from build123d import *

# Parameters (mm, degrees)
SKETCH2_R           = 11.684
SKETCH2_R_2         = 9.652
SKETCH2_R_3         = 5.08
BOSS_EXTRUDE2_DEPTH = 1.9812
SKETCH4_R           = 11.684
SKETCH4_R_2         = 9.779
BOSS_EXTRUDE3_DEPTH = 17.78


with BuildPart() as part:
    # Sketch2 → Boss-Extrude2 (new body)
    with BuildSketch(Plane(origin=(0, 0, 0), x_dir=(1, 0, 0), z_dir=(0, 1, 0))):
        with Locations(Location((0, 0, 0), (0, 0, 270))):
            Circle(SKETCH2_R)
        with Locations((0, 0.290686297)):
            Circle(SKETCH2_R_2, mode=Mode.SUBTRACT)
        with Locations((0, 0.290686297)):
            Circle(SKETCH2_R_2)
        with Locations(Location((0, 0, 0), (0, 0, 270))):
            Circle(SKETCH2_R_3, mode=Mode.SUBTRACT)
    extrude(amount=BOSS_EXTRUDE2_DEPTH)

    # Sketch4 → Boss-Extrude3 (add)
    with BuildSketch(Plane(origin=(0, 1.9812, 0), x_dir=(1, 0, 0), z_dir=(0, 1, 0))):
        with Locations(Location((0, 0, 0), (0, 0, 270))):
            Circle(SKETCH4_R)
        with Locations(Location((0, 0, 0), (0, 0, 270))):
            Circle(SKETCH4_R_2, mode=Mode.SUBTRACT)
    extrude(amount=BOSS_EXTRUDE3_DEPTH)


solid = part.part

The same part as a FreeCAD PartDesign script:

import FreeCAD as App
import Part
import Sketcher

V = App.Vector
Q = App.Units.Quantity

doc = App.newDocument("Part")
body = doc.addObject("PartDesign::Body", "Body")

# Sketch on XZ plane
sketch1 = body.newObject("Sketcher::SketchObject", "Sketch")
sketch1.AttachmentSupport = (doc.getObject("XZ_Plane"), [""])
sketch1.MapMode = "FlatFace"
sketch1.addGeometry(Part.Circle(V(0, 0, 0), V(0, 0, 1), 11.684), False)
sketch1.addGeometry(Part.Circle(V(0, 0, 0), V(0, 0, 1), 5.08), False)
sketch1.addConstraint(Sketcher.Constraint("Coincident", 0, 3, -1, 1))
sketch1.addConstraint(Sketcher.Constraint("Coincident", 1, 3, -1, 1))
sketch1.addConstraint(Sketcher.Constraint("Diameter", 1, Q("0.4 in")))
sketch1.addConstraint(Sketcher.Constraint("Diameter", 0, Q("0.92 in")))
pad1 = body.newObject("PartDesign::Pad", "Pad")
pad1.Profile = sketch1
pad1.Length = Q("0.078 in")
pad1.Reversed = True

# Sketch on XZ plane
sketch2 = body.newObject("Sketcher::SketchObject", "Sketch001")
sketch2.AttachmentSupport = (doc.getObject("XZ_Plane"), [""])
sketch2.MapMode = "FlatFace"
sketch2.AttachmentOffset = App.Placement(V(0, 0, -0.078 * 25.4), App.Rotation())
sketch2.addGeometry(Part.Circle(V(0, 0, 0), V(0, 0, 1), 11.684), False)
sketch2.addGeometry(Part.Circle(V(0, 0, 0), V(0, 0, 1), 9.779), False)
sketch2.addConstraint(Sketcher.Constraint("Coincident", 0, 3, -1, 1))
sketch2.addConstraint(Sketcher.Constraint("Coincident", 1, 3, -1, 1))
sketch2.addConstraint(Sketcher.Constraint("Diameter", 0, Q("0.92 in")))
sketch2.addConstraint(Sketcher.Constraint("Diameter", 1, Q("0.77 in")))
pad2 = body.newObject("PartDesign::Pad", "Pad001")
pad2.Profile = sketch2
pad2.Length = Q("0.7 in")
pad2.Reversed = True

doc.recompute()
